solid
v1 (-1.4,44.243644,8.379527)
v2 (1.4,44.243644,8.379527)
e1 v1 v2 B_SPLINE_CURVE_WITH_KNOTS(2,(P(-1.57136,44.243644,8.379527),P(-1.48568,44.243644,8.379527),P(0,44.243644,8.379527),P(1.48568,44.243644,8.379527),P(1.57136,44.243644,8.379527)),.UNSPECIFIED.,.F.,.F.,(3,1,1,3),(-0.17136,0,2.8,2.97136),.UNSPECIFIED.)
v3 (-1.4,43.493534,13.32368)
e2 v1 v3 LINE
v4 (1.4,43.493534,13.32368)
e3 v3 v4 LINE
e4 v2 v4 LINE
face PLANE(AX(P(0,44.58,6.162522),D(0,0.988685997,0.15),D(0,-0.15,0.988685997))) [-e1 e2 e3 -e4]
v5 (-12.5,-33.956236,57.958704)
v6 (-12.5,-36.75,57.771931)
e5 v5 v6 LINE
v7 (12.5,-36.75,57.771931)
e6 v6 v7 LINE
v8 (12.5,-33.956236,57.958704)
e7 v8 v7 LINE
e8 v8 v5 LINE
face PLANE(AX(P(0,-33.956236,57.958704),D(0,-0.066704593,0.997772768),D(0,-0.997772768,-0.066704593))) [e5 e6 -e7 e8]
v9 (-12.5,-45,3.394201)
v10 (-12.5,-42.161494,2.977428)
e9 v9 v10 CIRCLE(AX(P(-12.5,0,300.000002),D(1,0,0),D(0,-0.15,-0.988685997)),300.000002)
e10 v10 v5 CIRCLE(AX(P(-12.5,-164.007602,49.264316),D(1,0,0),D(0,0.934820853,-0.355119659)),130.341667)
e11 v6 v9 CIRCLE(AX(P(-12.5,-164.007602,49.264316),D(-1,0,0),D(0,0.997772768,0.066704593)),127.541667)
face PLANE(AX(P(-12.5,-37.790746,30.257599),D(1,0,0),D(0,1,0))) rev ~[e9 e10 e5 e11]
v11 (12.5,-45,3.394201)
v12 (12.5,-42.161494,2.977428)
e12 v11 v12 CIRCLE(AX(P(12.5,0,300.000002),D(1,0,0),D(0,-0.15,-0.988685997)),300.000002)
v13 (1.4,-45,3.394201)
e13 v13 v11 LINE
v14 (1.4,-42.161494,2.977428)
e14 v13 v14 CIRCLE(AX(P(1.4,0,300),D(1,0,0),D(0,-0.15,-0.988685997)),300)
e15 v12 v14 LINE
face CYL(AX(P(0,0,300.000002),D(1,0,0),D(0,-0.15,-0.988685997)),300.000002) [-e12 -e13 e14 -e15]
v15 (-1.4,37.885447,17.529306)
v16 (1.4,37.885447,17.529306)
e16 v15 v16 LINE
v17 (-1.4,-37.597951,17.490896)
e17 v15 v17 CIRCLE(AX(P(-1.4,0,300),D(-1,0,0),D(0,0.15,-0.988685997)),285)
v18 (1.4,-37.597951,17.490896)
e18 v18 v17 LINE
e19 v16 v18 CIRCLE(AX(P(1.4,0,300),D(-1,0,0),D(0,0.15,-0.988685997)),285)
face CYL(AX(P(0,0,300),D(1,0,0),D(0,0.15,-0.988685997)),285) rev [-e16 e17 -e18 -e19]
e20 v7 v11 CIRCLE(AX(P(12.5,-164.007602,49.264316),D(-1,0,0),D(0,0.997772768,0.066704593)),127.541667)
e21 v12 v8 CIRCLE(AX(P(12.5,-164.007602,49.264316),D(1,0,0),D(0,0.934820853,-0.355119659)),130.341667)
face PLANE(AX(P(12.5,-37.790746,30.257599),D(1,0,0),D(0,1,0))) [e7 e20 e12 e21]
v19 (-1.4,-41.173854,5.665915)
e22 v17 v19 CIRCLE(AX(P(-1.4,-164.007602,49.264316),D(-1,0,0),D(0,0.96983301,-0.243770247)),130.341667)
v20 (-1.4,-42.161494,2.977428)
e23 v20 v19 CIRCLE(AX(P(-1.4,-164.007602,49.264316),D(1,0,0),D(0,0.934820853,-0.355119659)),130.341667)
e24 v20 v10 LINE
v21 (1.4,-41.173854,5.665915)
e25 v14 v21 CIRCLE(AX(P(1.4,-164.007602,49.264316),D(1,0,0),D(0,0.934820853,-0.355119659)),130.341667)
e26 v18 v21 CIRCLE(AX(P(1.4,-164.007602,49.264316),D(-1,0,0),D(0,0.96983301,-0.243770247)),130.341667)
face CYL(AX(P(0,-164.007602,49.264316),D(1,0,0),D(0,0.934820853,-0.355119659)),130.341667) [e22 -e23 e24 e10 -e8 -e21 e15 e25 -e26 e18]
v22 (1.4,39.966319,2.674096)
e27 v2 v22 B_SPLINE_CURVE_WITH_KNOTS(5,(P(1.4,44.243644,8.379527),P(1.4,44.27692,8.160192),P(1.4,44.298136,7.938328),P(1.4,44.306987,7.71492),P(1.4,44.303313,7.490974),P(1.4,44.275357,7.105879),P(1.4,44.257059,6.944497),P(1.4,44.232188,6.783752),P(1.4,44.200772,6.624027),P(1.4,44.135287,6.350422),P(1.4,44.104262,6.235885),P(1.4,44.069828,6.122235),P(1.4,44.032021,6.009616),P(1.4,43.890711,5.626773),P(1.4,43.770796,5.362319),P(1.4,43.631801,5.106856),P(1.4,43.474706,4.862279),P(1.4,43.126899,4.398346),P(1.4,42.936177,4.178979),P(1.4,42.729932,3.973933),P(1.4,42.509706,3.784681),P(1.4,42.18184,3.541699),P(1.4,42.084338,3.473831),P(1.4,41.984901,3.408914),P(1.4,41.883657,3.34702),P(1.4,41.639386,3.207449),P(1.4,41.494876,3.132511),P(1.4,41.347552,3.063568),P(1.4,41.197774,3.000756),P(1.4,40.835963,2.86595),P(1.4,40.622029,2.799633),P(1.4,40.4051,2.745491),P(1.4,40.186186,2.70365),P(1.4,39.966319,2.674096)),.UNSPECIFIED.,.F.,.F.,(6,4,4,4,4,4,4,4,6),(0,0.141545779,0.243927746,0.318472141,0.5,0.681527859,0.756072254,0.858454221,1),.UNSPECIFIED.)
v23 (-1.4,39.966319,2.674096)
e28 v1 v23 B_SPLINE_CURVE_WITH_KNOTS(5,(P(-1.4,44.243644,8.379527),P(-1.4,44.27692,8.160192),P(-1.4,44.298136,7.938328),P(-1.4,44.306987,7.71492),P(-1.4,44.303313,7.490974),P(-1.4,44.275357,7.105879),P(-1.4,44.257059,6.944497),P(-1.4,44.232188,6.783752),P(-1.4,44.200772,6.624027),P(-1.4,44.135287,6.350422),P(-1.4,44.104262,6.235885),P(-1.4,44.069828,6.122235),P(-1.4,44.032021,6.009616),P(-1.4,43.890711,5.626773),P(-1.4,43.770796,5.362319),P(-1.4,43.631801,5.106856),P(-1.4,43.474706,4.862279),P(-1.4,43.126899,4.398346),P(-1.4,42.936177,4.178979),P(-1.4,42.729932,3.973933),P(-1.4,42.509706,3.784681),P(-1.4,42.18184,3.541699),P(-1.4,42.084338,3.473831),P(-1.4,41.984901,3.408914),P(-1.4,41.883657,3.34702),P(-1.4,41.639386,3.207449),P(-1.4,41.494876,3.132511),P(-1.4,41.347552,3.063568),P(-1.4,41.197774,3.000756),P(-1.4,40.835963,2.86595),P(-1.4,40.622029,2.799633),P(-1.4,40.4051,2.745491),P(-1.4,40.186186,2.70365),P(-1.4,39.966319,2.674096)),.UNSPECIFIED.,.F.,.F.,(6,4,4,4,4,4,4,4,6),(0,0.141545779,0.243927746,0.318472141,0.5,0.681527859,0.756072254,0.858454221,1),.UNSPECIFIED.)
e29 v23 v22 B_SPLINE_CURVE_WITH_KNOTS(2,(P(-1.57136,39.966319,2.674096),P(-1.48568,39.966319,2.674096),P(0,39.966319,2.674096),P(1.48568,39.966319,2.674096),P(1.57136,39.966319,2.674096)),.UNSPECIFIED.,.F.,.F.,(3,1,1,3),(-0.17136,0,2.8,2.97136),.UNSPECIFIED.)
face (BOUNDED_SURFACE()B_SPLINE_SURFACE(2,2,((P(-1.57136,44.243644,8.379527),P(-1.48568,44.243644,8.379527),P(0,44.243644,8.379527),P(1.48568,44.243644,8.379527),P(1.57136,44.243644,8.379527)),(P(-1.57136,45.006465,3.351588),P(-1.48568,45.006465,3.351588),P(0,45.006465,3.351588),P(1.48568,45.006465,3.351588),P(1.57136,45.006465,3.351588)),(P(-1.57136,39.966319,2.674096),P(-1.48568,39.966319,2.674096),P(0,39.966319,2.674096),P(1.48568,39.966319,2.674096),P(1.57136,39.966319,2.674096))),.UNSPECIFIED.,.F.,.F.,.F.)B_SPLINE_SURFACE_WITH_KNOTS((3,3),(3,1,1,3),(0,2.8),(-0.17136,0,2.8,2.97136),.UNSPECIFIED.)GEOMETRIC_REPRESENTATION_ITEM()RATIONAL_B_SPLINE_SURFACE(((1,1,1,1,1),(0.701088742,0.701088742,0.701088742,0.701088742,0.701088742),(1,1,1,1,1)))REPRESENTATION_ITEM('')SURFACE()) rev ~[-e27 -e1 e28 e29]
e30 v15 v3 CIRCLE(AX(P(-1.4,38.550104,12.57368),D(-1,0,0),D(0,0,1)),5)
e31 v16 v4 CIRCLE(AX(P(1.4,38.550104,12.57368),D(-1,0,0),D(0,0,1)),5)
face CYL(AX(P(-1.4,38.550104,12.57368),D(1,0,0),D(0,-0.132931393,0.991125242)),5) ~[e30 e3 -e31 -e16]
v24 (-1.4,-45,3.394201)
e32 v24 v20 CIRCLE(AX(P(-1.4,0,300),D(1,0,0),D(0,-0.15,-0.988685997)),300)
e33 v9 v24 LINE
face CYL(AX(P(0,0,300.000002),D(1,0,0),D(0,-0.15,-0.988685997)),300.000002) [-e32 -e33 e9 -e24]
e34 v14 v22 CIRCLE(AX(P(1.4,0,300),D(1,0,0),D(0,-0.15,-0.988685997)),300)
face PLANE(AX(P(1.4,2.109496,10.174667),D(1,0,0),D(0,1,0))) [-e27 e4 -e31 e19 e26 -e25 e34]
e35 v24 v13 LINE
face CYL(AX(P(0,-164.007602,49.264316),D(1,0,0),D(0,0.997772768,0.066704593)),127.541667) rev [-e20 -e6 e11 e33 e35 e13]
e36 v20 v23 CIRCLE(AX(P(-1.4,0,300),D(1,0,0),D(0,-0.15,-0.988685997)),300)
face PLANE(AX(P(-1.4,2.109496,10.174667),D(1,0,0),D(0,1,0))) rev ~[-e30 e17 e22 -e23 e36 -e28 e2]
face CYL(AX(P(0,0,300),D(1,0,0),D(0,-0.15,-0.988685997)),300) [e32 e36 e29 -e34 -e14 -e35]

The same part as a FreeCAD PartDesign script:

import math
import FreeCAD as App
import Part
import Sketcher
Q = App.Units.Quantity


def edges_at(feature, points):
    """Names of the edges that pass closest to the given points."""
    edges = feature.Shape.Edges
    near = lambda p: min(range(len(edges)), key=lambda i: edges[i].distToShape(Part.Vertex(*p))[0])
    return sorted({f"Edge{near(p) + 1}" for p in points})

doc = App.newDocument("Part")
body = doc.addObject("PartDesign::Body", "Body")

sketch1 = body.newObject("Sketcher::SketchObject", "Sketch")
sketch1.AttachmentSupport = (doc.getObject("YZ_Plane"), [""])
sketch1.MapMode = "FlatFace"
sketch1.addGeometry([
    Part.ArcOfCircle(Part.Circle(App.Vector(-164.007602, 49.264316, 0), App.Vector(0, 0, 1), 127.541667), math.radians(-21.078585), math.radians(3.824732)),
    Part.ArcOfCircle(Part.Circle(App.Vector(0, 300, 0), App.Vector(0, 0, 1), 300), math.radians(-98.626927), math.radians(-81.373073)),
    Part.LineSegment(App.Vector(45, 3.394201, 0), App.Vector(44.58, 6.162522, 0)),
    Part.ArcOfCircle(Part.Circle(App.Vector(0, 300, 0), App.Vector(0, 0, 1), 297.2), math.radians(-97.963326), math.radians(-81.373073)),
    Part.ArcOfCircle(Part.Circle(App.Vector(-164.007602, 49.264316, 0), App.Vector(0, 0, 1), 130.341667), math.radians(-19.541723), math.radians(3.824732)),
    Part.LineSegment(App.Vector(-33.956236, 57.958704, 0), App.Vector(-36.75, 57.771931, 0)),
], False)
sketch1.addConstraint([
    Sketcher.Constraint("Coincident", 0, 1, 1, 1),
    Sketcher.Constraint("Coincident", 1, 2, 2, 1),
    Sketcher.Constraint("Coincident", 2, 2, 3, 2),
    Sketcher.Constraint("Coincident", 3, 1, 4, 1),
    Sketcher.Constraint("Coincident", 4, 2, 5, 1),
    Sketcher.Constraint("Coincident", 5, 2, 0, 2),
    Sketcher.Constraint("Coincident", 3, 3, 1, 3),
    Sketcher.Constraint("Coincident", 4, 3, 0, 3),
    Sketcher.Constraint("PointOnObject", 1, 3, -2),
    Sketcher.Constraint("Equal", 2, 5),
    Sketcher.Constraint("Radius", 1, Q("300 mm")),
    Sketcher.Constraint("Radius", 3, Q("297.2 mm")),
    Sketcher.Constraint("DistanceY", -1, 1, 1, 3, Q("300 mm")),
    Sketcher.Constraint("DistanceX", 0, 1, -1, 1, Q("45 mm")),
    Sketcher.Constraint("DistanceX", -1, 1, 1, 2, Q("45 mm")),
    Sketcher.Constraint("DistanceX", -1, 1, 2, 2, Q("44.58 mm")),
    Sketcher.Constraint("DistanceX", 5, 2, -1, 1, Q("36.75 mm")),
    Sketcher.Constraint("Radius", 0, Q("127.541667 mm")),
    Sketcher.Constraint("DistanceX", 0, 3, -1, 1, Q("164.007602 mm")),
    Sketcher.Constraint("DistanceY", 3, 1, 4, 2, Q("52.292789 mm")),
])
pad1 = body.newObject("PartDesign::Pad", "Pad")
pad1.Profile = sketch1
pad1.Length = 2.8
pad1.Midplane = True

sketch2 = body.newObject("Sketcher::SketchObject", "Sketch001")
sketch2.AttachmentSupport = (doc.getObject("YZ_Plane"), [""])
sketch2.MapMode = "FlatFace"
sketch2.addGeometry([
    Part.LineSegment(App.Vector(-33.956236, 57.958704, 0), App.Vector(-36.75, 57.771931, 0)),
    Part.ArcOfCircle(Part.Circle(App.Vector(-164.007602, 49.264316, 0), App.Vector(0, 0, 1), 127.541667), math.radians(-21.078585), math.radians(3.824732)),
    Part.ArcOfCircle(Part.Circle(App.Vector(0, 300.000002, 0), App.Vector(0, 0, 1), 300.000002), math.radians(-98.626927), math.radians(-98.078997)),
    Part.ArcOfCircle(Part.Circle(App.Vector(-164.007602, 49.264316, 0), App.Vector(0, 0, 1), 130.341667), math.radians(-20.800778), math.radians(3.824732)),
], False)
sketch2.addConstraint([
    Sketcher.Constraint("Coincident", 0, 2, 1, 2),
    Sketcher.Constraint("Coincident", 1, 1, 2, 1),
    Sketcher.Constraint("Coincident", 2, 2, 3, 1),
    Sketcher.Constraint("Coincident", 3, 2, 0, 1),
    Sketcher.Constraint("Coincident", 3, 3, 1, 3),
    Sketcher.Constraint("PointOnObject", 2, 3, -2),
    Sketcher.Constraint("DistanceX", 1, 1, -1, 1, Q("45 mm")),
    Sketcher.Constraint("Distance", 0, Q("2.8 mm")),
    Sketcher.Constraint("DistanceX", 0, 2, -1, 1, Q("36.75 mm")),
    Sketcher.Constraint("Radius", 1, Q("127.541667 mm")),
    Sketcher.Constraint("Radius", 2, Q("300.000002 mm")),
    Sketcher.Constraint("DistanceX", 1, 3, -1, 1, Q("164.007602 mm")),
    Sketcher.Constraint("DistanceY", -1, 1, 1, 1, Q("3.394201 mm")),
    Sketcher.Constraint("DistanceX", 3, 2, -1, 1, Q("33.956236 mm")),
])
pad2 = body.newObject("PartDesign::Pad", "Pad001")
pad2.Profile = sketch2
pad2.Length = 25
pad2.Midplane = True

sketch3 = body.newObject("Sketcher::SketchObject", "Sketch002")
sketch3.AttachmentSupport = (doc.getObject("YZ_Plane"), [""])
sketch3.MapMode = "FlatFace"
sketch3.addGeometry([
    Part.ArcOfCircle(Part.Circle(App.Vector(0, 300, 0), App.Vector(0, 0, 1), 297.2), math.radians(-97.963326), math.radians(-81.373073)),
    Part.LineSegment(App.Vector(44.58, 6.162522, 0), App.Vector(42.75, 18.224491, 0)),
    Part.ArcOfCircle(Part.Circle(App.Vector(0, 300, 0), App.Vector(0, 0, 1), 285), math.radians(-97.580708), math.radians(-81.373073)),
    Part.ArcOfCircle(Part.Circle(App.Vector(-164.007602, 49.264316, 0), App.Vector(0, 0, 1), 130.341667), math.radians(-19.541723), math.radians(-14.109171)),
], False)
sketch3.addConstraint([
    Sketcher.Constraint("Coincident", 0, 2, 1, 1),
    Sketcher.Constraint("Coincident", 1, 2, 2, 2),
    Sketcher.Constraint("Coincident", 2, 1, 3, 2),
    Sketcher.Constraint("Coincident", 3, 1, 0, 1),
    Sketcher.Constraint("Coincident", 2, 3, 0, 3),
    Sketcher.Constraint("PointOnObject", 0, 3, -2),
    Sketcher.Constraint("Radius", 2, Q("285 mm")),
    Sketcher.Constraint("Radius", 0, Q("297.2 mm")),
    Sketcher.Constraint("DistanceY", -1, 1, 0, 3, Q("300 mm")),
    Sketcher.Constraint("DistanceX", -1, 1, 0, 2, Q("44.58 mm")),
    Sketcher.Constraint("DistanceX", -1, 1, 1, 2, Q("42.75 mm")),
    Sketcher.Constraint("Radius", 3, Q("130.341667 mm")),
    Sketcher.Constraint("DistanceX", 3, 3, -1, 1, Q("164.007602 mm")),
    Sketcher.Constraint("DistanceY", 3, 1, 3, 3, Q("43.598401 mm")),
])
pad3 = body.newObject("PartDesign::Pad", "Pad002")
pad3.Profile = sketch3
pad3.Length = 2.8
pad3.Midplane = True
doc.recompute()

fillet = body.newObject("PartDesign::Fillet", "Fillet")
fillet.Base = (pad3, edges_at(pad3, [(0, 42.75, 18.224), (0, 45, 3.394)]))
fillet.Radius = 5

doc.recompute()
